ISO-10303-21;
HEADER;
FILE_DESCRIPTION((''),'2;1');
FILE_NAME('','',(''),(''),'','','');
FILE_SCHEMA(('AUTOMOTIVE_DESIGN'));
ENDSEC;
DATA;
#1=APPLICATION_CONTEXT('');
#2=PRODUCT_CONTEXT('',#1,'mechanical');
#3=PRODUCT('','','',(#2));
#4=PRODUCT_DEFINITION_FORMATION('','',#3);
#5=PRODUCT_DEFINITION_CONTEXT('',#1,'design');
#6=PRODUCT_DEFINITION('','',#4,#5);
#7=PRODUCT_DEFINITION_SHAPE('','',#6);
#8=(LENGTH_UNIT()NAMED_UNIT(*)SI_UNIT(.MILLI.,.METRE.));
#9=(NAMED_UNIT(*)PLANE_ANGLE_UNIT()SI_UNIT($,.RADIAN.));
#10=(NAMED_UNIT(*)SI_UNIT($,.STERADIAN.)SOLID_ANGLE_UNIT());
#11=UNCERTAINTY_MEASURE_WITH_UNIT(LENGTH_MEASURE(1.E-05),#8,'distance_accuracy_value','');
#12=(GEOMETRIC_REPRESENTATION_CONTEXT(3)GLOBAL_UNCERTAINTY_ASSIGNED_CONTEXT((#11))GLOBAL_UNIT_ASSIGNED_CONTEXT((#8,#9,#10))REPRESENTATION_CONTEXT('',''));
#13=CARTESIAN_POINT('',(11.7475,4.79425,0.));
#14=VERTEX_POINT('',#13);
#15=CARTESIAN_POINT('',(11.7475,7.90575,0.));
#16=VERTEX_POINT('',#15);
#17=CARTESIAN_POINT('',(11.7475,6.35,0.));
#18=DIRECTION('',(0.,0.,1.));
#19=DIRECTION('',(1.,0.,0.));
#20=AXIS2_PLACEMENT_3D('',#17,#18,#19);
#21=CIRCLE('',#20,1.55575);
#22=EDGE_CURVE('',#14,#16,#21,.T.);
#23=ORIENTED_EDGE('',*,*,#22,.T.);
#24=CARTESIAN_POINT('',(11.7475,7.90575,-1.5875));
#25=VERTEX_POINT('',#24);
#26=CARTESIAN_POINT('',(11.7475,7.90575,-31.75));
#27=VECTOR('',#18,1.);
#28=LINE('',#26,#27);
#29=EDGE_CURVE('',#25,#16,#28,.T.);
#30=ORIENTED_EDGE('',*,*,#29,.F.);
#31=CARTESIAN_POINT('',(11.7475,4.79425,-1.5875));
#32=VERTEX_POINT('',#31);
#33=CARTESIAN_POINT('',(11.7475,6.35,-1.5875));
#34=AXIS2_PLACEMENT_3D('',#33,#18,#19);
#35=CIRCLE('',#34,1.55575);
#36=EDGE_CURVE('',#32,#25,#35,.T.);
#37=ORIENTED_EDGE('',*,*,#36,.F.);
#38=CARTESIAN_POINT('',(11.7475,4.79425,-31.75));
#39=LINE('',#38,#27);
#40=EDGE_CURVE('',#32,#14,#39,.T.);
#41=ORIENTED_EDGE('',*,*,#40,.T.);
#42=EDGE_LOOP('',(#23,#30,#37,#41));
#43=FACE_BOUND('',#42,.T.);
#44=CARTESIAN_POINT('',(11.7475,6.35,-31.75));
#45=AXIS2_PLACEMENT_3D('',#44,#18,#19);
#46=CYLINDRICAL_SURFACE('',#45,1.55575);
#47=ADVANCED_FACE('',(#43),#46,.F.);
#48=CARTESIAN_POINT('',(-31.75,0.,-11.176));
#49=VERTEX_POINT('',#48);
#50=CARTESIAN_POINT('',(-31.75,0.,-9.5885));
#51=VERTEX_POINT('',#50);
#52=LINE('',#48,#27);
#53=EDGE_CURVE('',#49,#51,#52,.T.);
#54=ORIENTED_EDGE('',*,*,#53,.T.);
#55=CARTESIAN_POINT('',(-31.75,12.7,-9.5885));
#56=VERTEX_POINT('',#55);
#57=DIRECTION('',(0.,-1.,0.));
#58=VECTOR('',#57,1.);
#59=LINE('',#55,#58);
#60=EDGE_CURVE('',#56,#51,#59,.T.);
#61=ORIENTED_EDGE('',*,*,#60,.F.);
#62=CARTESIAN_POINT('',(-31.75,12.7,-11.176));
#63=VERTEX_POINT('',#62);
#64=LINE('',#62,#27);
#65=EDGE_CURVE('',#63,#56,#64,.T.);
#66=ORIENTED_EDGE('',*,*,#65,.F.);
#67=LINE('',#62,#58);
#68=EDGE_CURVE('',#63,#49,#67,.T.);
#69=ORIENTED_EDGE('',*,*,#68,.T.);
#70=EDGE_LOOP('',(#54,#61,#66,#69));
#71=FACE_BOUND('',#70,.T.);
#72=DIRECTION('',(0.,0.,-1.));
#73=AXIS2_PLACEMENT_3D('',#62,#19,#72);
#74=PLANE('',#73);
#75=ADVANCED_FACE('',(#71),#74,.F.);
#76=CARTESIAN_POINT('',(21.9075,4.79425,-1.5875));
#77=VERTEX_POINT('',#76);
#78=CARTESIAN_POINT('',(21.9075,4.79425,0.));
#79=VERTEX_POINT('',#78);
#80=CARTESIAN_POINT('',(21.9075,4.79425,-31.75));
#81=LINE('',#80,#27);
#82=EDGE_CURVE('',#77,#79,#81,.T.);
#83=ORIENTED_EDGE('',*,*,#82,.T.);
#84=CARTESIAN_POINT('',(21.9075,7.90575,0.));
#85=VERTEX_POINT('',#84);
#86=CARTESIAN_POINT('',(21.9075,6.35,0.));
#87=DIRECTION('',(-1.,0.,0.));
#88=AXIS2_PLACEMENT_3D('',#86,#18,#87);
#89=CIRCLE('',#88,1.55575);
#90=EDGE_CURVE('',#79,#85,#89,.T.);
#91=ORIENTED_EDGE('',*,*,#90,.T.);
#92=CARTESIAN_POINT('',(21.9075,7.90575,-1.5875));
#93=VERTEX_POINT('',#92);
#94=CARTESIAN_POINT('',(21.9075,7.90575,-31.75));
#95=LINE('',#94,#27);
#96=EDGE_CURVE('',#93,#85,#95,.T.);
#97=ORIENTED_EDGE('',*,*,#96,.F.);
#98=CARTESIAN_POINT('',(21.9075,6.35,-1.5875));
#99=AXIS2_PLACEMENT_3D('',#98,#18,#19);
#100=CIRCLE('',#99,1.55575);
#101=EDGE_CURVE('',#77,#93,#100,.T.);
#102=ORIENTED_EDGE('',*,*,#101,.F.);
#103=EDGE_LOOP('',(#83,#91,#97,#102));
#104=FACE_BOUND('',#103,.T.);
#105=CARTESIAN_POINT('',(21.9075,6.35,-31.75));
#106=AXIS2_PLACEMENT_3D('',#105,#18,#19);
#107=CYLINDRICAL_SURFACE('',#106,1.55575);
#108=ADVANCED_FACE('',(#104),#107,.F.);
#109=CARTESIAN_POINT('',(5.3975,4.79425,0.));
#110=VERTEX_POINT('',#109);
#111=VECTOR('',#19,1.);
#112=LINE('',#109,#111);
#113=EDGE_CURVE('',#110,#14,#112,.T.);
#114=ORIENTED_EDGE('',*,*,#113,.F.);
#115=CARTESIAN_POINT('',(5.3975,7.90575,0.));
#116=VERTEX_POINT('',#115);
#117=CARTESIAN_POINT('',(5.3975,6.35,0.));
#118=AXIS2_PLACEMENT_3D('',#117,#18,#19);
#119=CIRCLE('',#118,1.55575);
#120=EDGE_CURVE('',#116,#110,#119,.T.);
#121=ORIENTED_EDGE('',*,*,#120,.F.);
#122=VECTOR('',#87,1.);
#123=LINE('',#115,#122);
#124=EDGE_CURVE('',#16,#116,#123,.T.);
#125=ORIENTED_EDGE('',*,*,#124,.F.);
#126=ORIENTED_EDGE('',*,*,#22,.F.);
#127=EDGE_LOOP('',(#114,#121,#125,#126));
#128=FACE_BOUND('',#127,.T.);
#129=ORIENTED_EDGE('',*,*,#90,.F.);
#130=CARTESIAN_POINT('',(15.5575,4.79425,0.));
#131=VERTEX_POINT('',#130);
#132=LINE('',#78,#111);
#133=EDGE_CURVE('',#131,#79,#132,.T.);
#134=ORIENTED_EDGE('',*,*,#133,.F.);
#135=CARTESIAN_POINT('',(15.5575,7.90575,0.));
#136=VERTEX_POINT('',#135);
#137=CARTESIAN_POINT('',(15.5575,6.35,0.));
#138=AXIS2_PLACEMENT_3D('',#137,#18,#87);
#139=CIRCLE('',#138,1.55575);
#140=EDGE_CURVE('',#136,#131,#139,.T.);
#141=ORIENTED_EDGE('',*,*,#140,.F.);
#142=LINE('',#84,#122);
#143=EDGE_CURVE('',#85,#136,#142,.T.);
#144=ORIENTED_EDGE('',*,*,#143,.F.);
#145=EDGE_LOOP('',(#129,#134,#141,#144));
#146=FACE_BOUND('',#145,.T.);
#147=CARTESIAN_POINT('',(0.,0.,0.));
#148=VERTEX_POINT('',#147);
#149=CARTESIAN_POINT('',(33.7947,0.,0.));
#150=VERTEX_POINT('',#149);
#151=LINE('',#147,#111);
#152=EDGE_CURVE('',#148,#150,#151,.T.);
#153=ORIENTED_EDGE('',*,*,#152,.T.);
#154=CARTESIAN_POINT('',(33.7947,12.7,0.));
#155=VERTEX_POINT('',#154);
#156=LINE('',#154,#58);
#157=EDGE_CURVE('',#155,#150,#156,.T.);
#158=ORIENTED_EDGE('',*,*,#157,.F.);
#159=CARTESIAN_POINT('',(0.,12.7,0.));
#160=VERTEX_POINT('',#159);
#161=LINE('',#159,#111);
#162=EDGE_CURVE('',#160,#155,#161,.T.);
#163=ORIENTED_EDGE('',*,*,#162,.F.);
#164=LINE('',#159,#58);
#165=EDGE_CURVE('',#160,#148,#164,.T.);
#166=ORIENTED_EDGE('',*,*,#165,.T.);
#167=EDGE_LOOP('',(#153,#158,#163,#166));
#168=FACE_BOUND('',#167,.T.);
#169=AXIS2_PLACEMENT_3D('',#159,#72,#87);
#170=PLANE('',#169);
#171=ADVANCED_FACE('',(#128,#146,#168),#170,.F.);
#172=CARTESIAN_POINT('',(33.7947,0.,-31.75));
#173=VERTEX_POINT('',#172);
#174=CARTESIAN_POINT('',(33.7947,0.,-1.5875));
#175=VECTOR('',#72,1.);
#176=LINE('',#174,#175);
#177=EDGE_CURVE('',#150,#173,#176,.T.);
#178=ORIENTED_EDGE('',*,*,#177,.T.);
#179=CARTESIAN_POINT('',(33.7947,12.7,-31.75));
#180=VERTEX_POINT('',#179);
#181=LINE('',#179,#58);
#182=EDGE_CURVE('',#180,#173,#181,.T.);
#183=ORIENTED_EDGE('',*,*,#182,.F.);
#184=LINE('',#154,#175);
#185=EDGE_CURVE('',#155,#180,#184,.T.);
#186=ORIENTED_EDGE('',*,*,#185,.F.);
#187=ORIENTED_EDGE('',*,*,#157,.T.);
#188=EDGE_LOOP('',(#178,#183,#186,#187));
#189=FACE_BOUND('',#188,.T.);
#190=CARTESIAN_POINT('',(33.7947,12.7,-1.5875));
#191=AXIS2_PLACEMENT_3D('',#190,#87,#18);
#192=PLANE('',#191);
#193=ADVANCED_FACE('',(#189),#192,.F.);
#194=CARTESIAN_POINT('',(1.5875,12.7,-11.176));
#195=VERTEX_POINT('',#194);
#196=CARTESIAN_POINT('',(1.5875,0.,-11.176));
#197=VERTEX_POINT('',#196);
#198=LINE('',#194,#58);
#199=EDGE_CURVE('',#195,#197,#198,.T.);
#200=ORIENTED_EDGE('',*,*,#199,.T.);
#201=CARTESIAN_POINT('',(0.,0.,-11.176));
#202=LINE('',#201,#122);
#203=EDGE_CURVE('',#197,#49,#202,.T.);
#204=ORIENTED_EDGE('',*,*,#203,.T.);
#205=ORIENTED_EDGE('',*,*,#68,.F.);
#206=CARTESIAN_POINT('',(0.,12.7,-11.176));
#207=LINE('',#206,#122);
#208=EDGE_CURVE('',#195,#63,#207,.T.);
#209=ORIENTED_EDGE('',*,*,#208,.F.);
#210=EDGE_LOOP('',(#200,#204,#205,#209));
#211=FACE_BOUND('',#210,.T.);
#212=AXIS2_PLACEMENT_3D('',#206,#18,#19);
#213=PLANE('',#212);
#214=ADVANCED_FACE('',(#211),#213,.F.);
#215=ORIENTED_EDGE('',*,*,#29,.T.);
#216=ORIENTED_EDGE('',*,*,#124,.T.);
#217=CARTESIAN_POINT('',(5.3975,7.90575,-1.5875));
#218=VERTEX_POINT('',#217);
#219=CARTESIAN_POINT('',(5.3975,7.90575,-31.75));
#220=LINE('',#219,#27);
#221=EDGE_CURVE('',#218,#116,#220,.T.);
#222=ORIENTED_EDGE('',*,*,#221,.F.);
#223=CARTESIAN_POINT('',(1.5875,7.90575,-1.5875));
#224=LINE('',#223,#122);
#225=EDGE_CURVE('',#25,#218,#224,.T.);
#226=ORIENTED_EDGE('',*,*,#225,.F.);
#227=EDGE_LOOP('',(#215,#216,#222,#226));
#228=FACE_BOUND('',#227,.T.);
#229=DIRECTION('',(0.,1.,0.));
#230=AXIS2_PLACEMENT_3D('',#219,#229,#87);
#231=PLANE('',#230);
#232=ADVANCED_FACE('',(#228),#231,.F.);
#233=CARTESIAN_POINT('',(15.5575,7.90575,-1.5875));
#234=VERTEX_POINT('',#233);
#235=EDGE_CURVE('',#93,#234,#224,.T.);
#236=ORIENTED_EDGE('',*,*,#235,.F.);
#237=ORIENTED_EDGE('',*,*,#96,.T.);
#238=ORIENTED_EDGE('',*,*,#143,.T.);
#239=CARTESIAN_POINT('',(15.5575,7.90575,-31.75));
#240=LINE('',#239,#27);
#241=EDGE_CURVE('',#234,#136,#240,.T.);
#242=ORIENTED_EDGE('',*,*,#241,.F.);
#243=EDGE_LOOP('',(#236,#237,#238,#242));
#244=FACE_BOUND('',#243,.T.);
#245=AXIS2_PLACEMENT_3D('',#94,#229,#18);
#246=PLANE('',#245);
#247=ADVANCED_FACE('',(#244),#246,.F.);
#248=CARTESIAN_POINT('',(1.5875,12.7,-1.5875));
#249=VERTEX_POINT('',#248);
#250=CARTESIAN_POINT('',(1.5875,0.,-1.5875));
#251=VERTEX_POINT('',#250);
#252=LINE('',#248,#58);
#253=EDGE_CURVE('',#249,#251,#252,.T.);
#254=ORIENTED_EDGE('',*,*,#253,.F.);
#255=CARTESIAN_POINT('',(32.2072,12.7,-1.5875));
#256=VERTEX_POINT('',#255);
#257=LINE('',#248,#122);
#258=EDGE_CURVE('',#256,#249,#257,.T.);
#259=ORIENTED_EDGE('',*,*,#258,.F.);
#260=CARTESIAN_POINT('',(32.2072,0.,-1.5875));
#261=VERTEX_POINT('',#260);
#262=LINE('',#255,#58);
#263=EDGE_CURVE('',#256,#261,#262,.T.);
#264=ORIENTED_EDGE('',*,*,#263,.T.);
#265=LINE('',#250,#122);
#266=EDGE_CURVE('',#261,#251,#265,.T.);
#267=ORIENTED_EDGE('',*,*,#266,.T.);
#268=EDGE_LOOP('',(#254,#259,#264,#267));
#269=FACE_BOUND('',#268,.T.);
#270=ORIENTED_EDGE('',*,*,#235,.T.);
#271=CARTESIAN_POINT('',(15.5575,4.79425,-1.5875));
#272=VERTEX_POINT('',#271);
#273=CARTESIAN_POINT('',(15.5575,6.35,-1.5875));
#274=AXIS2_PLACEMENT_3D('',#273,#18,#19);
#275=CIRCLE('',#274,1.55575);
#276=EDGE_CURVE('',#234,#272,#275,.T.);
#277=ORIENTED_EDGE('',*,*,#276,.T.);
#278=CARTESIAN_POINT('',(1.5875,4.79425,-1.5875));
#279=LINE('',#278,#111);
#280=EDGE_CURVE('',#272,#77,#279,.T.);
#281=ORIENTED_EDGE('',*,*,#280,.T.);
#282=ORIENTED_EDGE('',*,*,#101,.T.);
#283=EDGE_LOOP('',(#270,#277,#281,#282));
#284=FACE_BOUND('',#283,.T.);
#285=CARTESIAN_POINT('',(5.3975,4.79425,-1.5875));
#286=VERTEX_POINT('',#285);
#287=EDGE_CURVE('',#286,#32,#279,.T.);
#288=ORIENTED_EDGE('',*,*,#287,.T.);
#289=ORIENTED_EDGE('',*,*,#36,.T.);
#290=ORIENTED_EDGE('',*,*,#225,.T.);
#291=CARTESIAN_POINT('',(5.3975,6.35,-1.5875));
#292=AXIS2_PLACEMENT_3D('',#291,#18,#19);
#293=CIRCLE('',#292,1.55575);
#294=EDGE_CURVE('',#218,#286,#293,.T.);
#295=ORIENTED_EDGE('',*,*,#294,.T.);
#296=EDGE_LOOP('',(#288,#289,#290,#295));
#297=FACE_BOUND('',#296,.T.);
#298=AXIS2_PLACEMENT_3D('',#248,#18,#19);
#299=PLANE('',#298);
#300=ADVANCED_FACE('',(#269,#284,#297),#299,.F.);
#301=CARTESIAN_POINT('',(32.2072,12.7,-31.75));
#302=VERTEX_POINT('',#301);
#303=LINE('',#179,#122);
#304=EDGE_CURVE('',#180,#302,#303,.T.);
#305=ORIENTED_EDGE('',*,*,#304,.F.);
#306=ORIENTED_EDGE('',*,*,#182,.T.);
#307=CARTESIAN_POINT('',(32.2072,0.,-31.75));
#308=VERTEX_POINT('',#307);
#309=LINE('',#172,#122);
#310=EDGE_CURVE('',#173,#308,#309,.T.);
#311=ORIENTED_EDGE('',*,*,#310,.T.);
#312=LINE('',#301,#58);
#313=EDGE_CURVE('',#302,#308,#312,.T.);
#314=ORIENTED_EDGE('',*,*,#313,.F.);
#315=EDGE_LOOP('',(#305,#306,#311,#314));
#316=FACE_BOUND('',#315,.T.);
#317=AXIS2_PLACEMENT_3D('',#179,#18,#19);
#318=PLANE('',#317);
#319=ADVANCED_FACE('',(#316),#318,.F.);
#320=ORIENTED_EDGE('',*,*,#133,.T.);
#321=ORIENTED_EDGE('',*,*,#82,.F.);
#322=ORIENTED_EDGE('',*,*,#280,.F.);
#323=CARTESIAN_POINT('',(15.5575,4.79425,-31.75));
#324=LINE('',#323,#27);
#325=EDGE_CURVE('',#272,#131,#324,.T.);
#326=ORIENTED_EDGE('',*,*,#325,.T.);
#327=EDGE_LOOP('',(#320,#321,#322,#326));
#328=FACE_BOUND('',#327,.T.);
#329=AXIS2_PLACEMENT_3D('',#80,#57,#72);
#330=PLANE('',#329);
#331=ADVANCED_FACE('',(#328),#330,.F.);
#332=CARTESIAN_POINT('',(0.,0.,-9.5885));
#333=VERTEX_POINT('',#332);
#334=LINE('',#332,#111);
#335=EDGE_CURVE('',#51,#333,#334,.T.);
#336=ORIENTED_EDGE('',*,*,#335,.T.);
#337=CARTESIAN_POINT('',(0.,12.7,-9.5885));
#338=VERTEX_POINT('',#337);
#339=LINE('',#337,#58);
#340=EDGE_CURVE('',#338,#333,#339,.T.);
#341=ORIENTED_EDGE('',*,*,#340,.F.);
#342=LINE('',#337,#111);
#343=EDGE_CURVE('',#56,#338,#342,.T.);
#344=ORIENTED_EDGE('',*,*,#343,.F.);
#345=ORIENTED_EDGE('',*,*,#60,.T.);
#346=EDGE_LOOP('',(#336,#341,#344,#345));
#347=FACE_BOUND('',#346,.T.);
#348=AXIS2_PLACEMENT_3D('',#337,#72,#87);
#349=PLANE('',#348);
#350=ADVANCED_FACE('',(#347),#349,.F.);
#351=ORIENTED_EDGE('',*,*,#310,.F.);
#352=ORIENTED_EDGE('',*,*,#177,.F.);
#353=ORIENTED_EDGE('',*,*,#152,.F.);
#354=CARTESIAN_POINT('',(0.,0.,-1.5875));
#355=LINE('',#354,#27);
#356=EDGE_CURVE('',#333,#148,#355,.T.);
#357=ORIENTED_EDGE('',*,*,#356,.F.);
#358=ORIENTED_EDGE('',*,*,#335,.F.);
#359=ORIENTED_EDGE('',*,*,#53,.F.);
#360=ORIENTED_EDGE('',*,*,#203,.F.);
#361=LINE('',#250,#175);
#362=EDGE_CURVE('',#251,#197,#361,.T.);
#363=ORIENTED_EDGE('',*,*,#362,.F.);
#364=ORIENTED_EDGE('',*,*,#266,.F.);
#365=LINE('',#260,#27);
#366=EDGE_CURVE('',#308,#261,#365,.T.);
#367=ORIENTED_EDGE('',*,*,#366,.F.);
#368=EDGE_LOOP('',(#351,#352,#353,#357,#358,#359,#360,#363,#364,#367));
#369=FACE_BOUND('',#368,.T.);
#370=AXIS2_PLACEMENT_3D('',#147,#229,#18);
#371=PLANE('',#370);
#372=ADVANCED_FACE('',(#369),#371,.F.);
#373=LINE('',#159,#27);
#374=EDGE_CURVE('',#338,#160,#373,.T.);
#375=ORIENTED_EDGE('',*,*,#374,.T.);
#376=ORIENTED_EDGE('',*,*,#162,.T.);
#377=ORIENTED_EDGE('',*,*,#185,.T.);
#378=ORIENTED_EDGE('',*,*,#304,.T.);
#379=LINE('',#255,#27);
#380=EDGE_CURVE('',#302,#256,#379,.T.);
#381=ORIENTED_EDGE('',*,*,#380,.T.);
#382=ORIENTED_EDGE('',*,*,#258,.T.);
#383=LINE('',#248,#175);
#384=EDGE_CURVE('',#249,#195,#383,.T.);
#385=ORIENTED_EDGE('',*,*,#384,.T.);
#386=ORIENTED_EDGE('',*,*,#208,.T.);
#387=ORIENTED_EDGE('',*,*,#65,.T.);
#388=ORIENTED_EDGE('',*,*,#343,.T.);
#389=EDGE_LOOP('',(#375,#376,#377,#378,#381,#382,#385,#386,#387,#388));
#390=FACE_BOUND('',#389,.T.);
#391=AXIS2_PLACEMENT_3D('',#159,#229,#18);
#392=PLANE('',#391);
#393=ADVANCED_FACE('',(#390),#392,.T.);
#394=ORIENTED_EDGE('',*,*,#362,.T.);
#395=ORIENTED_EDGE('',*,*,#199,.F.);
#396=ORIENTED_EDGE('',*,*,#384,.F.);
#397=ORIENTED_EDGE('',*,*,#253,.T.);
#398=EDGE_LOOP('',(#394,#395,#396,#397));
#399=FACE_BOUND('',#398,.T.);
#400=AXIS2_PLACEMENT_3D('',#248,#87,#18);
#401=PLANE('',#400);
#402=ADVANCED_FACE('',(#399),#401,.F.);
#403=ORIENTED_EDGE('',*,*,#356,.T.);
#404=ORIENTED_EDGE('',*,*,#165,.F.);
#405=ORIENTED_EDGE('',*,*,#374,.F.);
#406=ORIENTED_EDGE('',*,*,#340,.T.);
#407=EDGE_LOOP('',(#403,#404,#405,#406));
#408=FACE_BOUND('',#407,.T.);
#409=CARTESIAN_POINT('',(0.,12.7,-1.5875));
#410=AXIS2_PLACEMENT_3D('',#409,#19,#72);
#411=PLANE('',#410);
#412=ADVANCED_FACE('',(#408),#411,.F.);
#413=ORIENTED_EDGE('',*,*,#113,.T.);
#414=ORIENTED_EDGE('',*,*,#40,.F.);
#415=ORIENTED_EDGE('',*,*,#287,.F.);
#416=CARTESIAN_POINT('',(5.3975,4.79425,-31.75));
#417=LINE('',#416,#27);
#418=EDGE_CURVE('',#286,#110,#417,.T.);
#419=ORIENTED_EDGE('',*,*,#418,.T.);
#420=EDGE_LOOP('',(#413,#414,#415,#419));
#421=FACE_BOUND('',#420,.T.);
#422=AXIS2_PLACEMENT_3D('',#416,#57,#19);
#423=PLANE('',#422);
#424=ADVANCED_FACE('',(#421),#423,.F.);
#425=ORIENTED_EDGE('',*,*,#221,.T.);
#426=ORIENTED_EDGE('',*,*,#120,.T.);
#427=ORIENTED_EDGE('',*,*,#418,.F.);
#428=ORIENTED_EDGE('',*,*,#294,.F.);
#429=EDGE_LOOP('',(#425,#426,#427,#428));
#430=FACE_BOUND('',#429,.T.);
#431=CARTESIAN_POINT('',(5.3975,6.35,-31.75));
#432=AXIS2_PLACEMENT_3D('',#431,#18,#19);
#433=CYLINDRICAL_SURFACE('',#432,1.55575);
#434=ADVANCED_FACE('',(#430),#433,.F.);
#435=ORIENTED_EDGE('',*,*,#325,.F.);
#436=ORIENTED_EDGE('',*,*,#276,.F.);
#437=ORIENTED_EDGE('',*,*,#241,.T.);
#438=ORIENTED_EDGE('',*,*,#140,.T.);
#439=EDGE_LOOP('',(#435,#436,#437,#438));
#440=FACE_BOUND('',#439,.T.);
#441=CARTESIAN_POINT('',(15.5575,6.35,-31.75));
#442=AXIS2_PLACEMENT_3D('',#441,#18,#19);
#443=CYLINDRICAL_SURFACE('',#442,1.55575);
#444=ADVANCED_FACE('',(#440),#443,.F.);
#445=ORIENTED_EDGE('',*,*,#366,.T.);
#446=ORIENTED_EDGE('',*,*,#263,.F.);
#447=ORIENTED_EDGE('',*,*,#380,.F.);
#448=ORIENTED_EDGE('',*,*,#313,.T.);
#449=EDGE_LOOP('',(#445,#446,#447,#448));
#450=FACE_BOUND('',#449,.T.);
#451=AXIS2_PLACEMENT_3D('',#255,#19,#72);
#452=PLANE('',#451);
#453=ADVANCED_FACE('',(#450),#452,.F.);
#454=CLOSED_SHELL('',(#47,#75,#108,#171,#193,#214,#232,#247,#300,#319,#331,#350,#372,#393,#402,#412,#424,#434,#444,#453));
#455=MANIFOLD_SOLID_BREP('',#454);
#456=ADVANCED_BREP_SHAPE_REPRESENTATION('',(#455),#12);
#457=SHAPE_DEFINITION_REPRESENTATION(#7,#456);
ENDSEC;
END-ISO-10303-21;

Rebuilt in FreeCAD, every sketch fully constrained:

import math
import FreeCAD as App
import Part
import Sketcher
from FreeCAD import Vector
Q = App.Units.Quantity


def add_polygon(sketch, points):
    """Adds a closed chain of lines whose ends are joined by coincident constraints."""
    first, n = sketch.GeometryCount, len(points)
    for a, b in zip(points, points[1:] + points[:1]):
        sketch.addGeometry(Part.LineSegment(App.Vector(*a, 0), App.Vector(*b, 0)), False)
    for i in range(n):
        sketch.addConstraint(Sketcher.Constraint("Coincident", first + i, 2, first + (i + 1) % n, 1))

doc = App.newDocument("Part")
body = doc.addObject("PartDesign::Body", "Body")

# Sketch on XZ plane
sketch1 = body.newObject("Sketcher::SketchObject", "Sketch")
sketch1.AttachmentSupport = (doc.getObject("XZ_Plane"), [""])
sketch1.MapMode = "FlatFace"
add_polygon(sketch1, [(0, 0), (33.7947, 0), (33.7947, -31.75), (32.2072, -31.75), (32.2072, -1.5875), (1.5875, -1.5875), (1.5875, -11.176), (-31.75, -11.176), (-31.75, -9.5885), (0, -9.5885)])  # lines 0-9
sketch1.addConstraint([
    Sketcher.Constraint("Horizontal", 0),
    Sketcher.Constraint("Vertical", 1),
    Sketcher.Constraint("Horizontal", 2),
    Sketcher.Constraint("Vertical", 3),
    Sketcher.Constraint("Horizontal", 4),
    Sketcher.Constraint("Vertical", 5),
    Sketcher.Constraint("Horizontal", 6),
    Sketcher.Constraint("Vertical", 7),
    Sketcher.Constraint("Horizontal", 8),
    Sketcher.Constraint("Vertical", 9),
    Sketcher.Constraint("Coincident", 9, 2, -1, 1),
    Sketcher.Constraint("Equal", 8, 1),
    Sketcher.Constraint("Equal", 2, 7),
    Sketcher.Constraint("Equal", 5, 9),
    Sketcher.Constraint("DistanceX", 8, 1, 8, 2, Q("1.25 in")),
    Sketcher.Constraint("DistanceX", 2, 2, 2, 1, Q("0.0625 in")),
    Sketcher.Constraint("DistanceX", 6, 2, 6, 1, Q("1.3125 in")),
    Sketcher.Constraint("DistanceY", 5, 2, -1, 1, Q("0.44 in")),
    Sketcher.Constraint("DistanceX", 0, 1, 0, 2, Q("1.3305 in")),
])
pad1 = body.newObject("PartDesign::Pad", "Pad")
pad1.Profile = sketch1
pad1.Length = Q("0.5 in")
pad1.Reversed = True

# Sketch on XY plane
sketch2 = body.newObject("Sketcher::SketchObject", "Sketch001")
sketch2.AttachmentSupport = (doc.getObject("XY_Plane"), [""])
sketch2.MapMode = "FlatFace"
sketch2.addGeometry([
    Part.LineSegment(Vector(11.7475, 7.90575, 0), Vector(5.3975, 7.90575, 0)),  # 0
    Part.ArcOfCircle(Part.Circle(Vector(5.3975, 6.35, 0), Vector(0, 0, 1), 1.55575), math.radians(90), math.radians(270)),  # 1
    Part.LineSegment(Vector(5.3975, 4.79425, 0), Vector(11.7475, 4.79425, 0)),  # 2
    Part.ArcOfCircle(Part.Circle(Vector(11.7475, 6.35, 0), Vector(0, 0, 1), 1.55575), math.radians(-90), math.radians(90)),  # 3
    Part.LineSegment(Vector(21.9075, 7.90575, 0), Vector(15.5575, 7.90575, 0)),  # 4
    Part.ArcOfCircle(Part.Circle(Vector(15.5575, 6.35, 0), Vector(0, 0, 1), 1.55575), math.radians(90), math.radians(270)),  # 5
    Part.LineSegment(Vector(15.5575, 4.79425, 0), Vector(21.9075, 4.79425, 0)),  # 6
    Part.ArcOfCircle(Part.Circle(Vector(21.9075, 6.35, 0), Vector(0, 0, 1), 1.55575), math.radians(-90), math.radians(90)),  # 7
], False)
sketch2.addConstraint([
    Sketcher.Constraint("Tangent", 0, 2, 1, 1),
    Sketcher.Constraint("Tangent", 1, 2, 2, 1),
    Sketcher.Constraint("Tangent", 2, 2, 3, 1),
    Sketcher.Constraint("Tangent", 3, 2, 0, 1),
    Sketcher.Constraint("Tangent", 4, 2, 5, 1),
    Sketcher.Constraint("Tangent", 5, 2, 6, 1),
    Sketcher.Constraint("Tangent", 6, 2, 7, 1),
    Sketcher.Constraint("Tangent", 7, 2, 4, 1),
    Sketcher.Constraint("Horizontal", 0),
    Sketcher.Constraint("Horizontal", 2),
    Sketcher.Constraint("Horizontal", 4),
    Sketcher.Constraint("Horizontal", 6),
    Sketcher.Constraint("Equal", 3, 5),
    Sketcher.Constraint("Horizontal", 3, 3, 5, 3),
    Sketcher.Constraint("Equal", 2, 4),
    Sketcher.Constraint("DistanceX", 0, 2, 0, 1, Q("0.25 in")),
    Sketcher.Constraint("DistanceX", 1, 3, 5, 3, Q("0.4 in")),
    Sketcher.Constraint("DistanceY", -1, 1, 1, 3, Q("0.25 in")),
    Sketcher.Constraint("Radius", 1, 1.55575),
    Sketcher.Constraint("DistanceX", -1, 1, 1, 3, Q("0.2125 in")),
])
pocket1 = body.newObject("PartDesign::Pocket", "Pocket")
pocket1.Profile = sketch2
pocket1.Type = "ThroughAll"

doc.recompute()
